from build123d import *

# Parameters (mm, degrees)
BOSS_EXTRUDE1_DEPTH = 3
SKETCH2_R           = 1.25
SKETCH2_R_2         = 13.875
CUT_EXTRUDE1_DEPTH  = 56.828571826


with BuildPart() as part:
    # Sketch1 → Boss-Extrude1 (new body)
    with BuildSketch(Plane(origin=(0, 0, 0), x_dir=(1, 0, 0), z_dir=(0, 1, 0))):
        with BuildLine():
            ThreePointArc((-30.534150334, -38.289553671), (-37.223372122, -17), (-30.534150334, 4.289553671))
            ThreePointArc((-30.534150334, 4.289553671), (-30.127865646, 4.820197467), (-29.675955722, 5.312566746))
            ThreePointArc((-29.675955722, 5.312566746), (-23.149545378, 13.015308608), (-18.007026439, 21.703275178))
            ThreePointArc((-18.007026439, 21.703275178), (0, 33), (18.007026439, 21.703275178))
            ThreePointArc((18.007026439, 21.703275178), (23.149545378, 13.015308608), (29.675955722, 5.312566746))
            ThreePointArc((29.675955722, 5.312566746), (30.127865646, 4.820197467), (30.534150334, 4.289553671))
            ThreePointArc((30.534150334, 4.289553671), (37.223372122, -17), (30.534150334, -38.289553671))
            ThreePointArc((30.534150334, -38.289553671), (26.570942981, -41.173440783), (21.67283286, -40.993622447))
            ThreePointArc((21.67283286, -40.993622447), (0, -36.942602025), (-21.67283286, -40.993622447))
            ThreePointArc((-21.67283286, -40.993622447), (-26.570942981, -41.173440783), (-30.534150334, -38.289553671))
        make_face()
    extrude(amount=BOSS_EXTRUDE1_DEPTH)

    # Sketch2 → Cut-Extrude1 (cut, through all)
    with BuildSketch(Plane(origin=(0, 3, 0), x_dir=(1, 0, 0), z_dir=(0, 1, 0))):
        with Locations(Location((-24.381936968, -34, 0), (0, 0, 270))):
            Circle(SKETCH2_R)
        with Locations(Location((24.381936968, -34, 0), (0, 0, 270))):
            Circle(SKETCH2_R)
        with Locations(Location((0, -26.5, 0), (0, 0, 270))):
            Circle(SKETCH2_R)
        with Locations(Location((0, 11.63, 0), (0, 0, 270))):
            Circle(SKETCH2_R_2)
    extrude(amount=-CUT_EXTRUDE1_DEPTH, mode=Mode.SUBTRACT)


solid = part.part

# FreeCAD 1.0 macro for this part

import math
import FreeCAD as App
import Part
import Sketcher

V = App.Vector
Q = App.Units.Quantity

doc = App.newDocument("Part")
body = doc.addObject("PartDesign::Body", "Body")

# Sketch on XZ plane
sketch1 = doc.addObject("Sketcher::SketchObject", "Sketch")
body.addObject(sketch1)
sketch1.AttachmentSupport = (doc.XZ_Plane, [""])
sketch1.MapMode = "FlatFace"
sketch1.addGeometry([
    Part.ArcOfCircle(Part.Circle(V(0, 17, 0), V(0, 0, 1), 37.223372), math.radians(145.114347), math.radians(214.885653)),  # 0
    Part.ArcOfCircle(Part.Circle(V(-24.381937, 34, 0), V(0, 0, 1), 7.5), math.radians(68.825237), math.radians(145.114347)),  # 1
    Part.ArcOfCircle(Part.Circle(V(0, 96.942602, 0), V(0, 0, 1), 60), math.radians(-111.174763), math.radians(-68.825237)),  # 2
    Part.ArcOfCircle(Part.Circle(V(24.381937, 34, 0), V(0, 0, 1), 7.5), math.radians(34.885653), math.radians(111.174763)),  # 3
    Part.ArcOfCircle(Part.Circle(V(0, 17, 0), V(0, 0, 1), 37.223372), math.radians(-34.885653), math.radians(34.885653)),  # 4
    Part.ArcOfCircle(Part.Circle(V(24.381937, 0, 0), V(0, 0, 1), 7.5), math.radians(-45.100194), math.radians(-34.885653)),  # 5
    Part.ArcOfCircle(Part.Circle(V(72.028106, -47.813101, 0), V(0, 0, 1), 60), math.radians(134.899806), math.radians(154.204285)),  # 6
    Part.ArcOfCircle(Part.Circle(V(0, -13, 0), V(0, 0, 1), 20), math.radians(-154.204285), math.radians(-25.795715)),  # 7
    Part.ArcOfCircle(Part.Circle(V(-72.028106, -47.813101, 0), V(0, 0, 1), 60), math.radians(25.795715), math.radians(45.100194)),  # 8
    Part.ArcOfCircle(Part.Circle(V(-24.381937, 0, 0), V(0, 0, 1), 7.5), math.radians(-145.114347), math.radians(-134.899806)),  # 9
], False)
sketch1.addConstraint([
    Sketcher.Constraint("Tangent", 0, 1, 1, 2),
    Sketcher.Constraint("Tangent", 1, 1, 2, 1),
    Sketcher.Constraint("Tangent", 2, 2, 3, 2),
    Sketcher.Constraint("Tangent", 3, 1, 4, 2),
    Sketcher.Constraint("Tangent", 4, 1, 5, 2),
    Sketcher.Constraint("Tangent", 5, 1, 6, 1),
    Sketcher.Constraint("Tangent", 6, 2, 7, 2),
    Sketcher.Constraint("Tangent", 7, 1, 8, 1),
    Sketcher.Constraint("Tangent", 8, 2, 9, 2),
    Sketcher.Constraint("Tangent", 9, 1, 0, 2),
    Sketcher.Constraint("Coincident", 4, 3, 0, 3),
    Sketcher.Constraint("Equal", 1, 3),
    Sketcher.Constraint("Equal", 0, 4),
    Sketcher.Constraint("Equal", 3, 5),
    Sketcher.Constraint("Equal", 2, 6),
    Sketcher.Constraint("Equal", 6, 8),
    Sketcher.Constraint("Equal", 5, 9),
    Sketcher.Constraint("Symmetric", 5, 3, 9, 3, -1, 1),
    Sketcher.Constraint("Symmetric", 1, 3, 3, 3, -2),
    Sketcher.Constraint("PointOnObject", 7, 3, -2),
    Sketcher.Constraint("Vertical", 3, 3, 5, 3),
    Sketcher.Constraint("Radius", 2, Q("60 mm")),
    Sketcher.Constraint("Radius", 7, Q("20 mm")),
    Sketcher.Constraint("Radius", 1, Q("7.5 mm")),
    Sketcher.Constraint("DistanceY", -1, 1, 0, 3, Q("17 mm")),
    Sketcher.Constraint("DistanceY", 7, 3, -1, 1, Q("13 mm")),
    Sketcher.Constraint("Radius", 0, Q("37.223372 mm")),
])
pad1 = doc.addObject("PartDesign::Pad", "Pad")
body.addObject(pad1)
pad1.Profile = sketch1
pad1.Length = 3
pad1.Reversed = True

# Sketch on XZ plane
sketch2 = doc.addObject("Sketcher::SketchObject", "Sketch001")
body.addObject(sketch2)
sketch2.AttachmentSupport = (doc.XZ_Plane, [""])
sketch2.MapMode = "FlatFace"
sketch2.AttachmentOffset = App.Placement(V(0, 0, -3), App.Rotation())
sketch2.addGeometry([
    Part.Circle(V(-24.381937, 34, 0), V(0, 0, 1), 1.25),
    Part.Circle(V(24.381937, 34, 0), V(0, 0, 1), 1.25),
    Part.Circle(V(0, 26.5, 0), V(0, 0, 1), 1.25),
    Part.Circle(V(0, -11.63, 0), V(0, 0, 1), 13.875),
], False)
sketch2.addConstraint([
    Sketcher.Constraint("Equal", 0, 1),
    Sketcher.Constraint("Equal", 1, 2),
    Sketcher.Constraint("Symmetric", 0, 3, 1, 3, -2),
    Sketcher.Constraint("PointOnObject", 2, 3, -2),
    Sketcher.Constraint("PointOnObject", 3, 3, -2),
    Sketcher.Constraint("Diameter", 0, Q("2.5 mm")),
    Sketcher.Constraint("Diameter", 3, Q("27.75 mm")),
    Sketcher.Constraint("DistanceY", -1, 1, 0, 3, Q("34 mm")),
    Sketcher.Constraint("DistanceY", -1, 1, 2, 3, Q("26.5 mm")),
    Sketcher.Constraint("DistanceY", 3, 3, -1, 1, Q("11.63 mm")),
    Sketcher.Constraint("DistanceX", 0, 3, -1, 1, Q("24.381937 mm")),
])
pocket1 = doc.addObject("PartDesign::Pocket", "Pocket")
body.addObject(pocket1)
pocket1.Profile = sketch2
pocket1.Type = "ThroughAll"
pocket1.Reversed = True

doc.recompute()
